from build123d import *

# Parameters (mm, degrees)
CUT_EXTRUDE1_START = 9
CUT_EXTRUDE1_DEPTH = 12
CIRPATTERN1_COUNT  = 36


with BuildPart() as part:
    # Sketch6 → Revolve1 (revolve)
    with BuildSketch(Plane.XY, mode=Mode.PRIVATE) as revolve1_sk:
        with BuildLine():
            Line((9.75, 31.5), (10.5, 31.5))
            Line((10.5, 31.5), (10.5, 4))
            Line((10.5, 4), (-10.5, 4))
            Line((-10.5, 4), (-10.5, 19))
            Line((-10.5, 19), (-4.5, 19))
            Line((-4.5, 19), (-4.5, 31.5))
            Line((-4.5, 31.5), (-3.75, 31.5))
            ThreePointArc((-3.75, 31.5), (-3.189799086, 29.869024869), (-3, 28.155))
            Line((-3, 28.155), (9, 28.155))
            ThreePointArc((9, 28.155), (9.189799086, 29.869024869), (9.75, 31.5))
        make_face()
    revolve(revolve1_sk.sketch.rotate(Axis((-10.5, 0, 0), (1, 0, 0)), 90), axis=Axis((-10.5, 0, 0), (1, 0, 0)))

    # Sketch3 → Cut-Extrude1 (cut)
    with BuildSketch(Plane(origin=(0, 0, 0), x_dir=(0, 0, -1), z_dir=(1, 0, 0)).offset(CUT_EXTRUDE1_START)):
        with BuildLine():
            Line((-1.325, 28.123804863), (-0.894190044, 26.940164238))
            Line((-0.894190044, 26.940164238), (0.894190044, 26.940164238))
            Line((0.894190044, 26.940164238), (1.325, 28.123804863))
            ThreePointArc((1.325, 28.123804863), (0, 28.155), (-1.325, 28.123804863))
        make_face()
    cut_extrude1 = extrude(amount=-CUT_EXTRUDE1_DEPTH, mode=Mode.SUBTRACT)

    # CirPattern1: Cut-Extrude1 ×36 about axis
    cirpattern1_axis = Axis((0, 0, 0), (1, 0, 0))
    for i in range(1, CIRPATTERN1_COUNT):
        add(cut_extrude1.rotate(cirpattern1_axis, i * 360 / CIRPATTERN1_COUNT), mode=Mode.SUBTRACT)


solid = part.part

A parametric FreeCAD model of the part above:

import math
import FreeCAD as App
import Part
import Sketcher
Q = App.Units.Quantity

doc = App.newDocument("Part")
body = doc.addObject("PartDesign::Body", "Body")

# Sketch on XY plane
sketch1 = doc.addObject("Sketcher::SketchObject", "Sketch")
body.addObject(sketch1)
sketch1.AttachmentSupport = (doc.XY_Plane, [""])
sketch1.MapMode = "FlatFace"
sketch1.addGeometry(Part.LineSegment(App.Vector(10.5, 31.5, 0), App.Vector(9.8, 31.5, 0)), False)
sketch1.addGeometry(Part.ArcOfCircle(Part.Circle(App.Vector(16.8, 28.2, 0), App.Vector(0, 0, 1), 7.8), math.radians(155), math.radians(180)), False)
sketch1.addGeometry(Part.LineSegment(App.Vector(9, 28.2, 0), App.Vector(-3, 28.2, 0)), False)
sketch1.addGeometry(Part.ArcOfCircle(Part.Circle(App.Vector(-10.8, 28.2, 0), App.Vector(0, 0, 1), 7.8), math.radians(0), math.radians(25)), False)
sketch1.addGeometry(Part.LineSegment(App.Vector(-3.8, 31.5, 0), App.Vector(-4.5, 31.5, 0)), False)
sketch1.addGeometry(Part.LineSegment(App.Vector(-4.5, 31.5, 0), App.Vector(-4.5, 19, 0)), False)
sketch1.addGeometry(Part.LineSegment(App.Vector(-4.5, 19, 0), App.Vector(-10.5, 19, 0)), False)
sketch1.addGeometry(Part.LineSegment(App.Vector(-10.5, 19, 0), App.Vector(-10.5, 4, 0)), False)
sketch1.addGeometry(Part.LineSegment(App.Vector(-10.5, 4, 0), App.Vector(10.5, 4, 0)), False)
sketch1.addGeometry(Part.LineSegment(App.Vector(10.5, 4, 0), App.Vector(10.5, 31.5, 0)), False)
sketch1.addConstraint(Sketcher.Constraint("Coincident", 0, 2, 1, 1))
sketch1.addConstraint(Sketcher.Constraint("Coincident", 1, 2, 2, 1))
sketch1.addConstraint(Sketcher.Constraint("Coincident", 2, 2, 3, 1))
sketch1.addConstraint(Sketcher.Constraint("Coincident", 3, 2, 4, 1))
sketch1.addConstraint(Sketcher.Constraint("Coincident", 4, 2, 5, 1))
sketch1.addConstraint(Sketcher.Constraint("Coincident", 5, 2, 6, 1))
sketch1.addConstraint(Sketcher.Constraint("Coincident", 6, 2, 7, 1))
sketch1.addConstraint(Sketcher.Constraint("Coincident", 7, 2, 8, 1))
sketch1.addConstraint(Sketcher.Constraint("Coincident", 8, 2, 9, 1))
sketch1.addConstraint(Sketcher.Constraint("Coincident", 9, 2, 0, 1))
sketch1.addConstraint(Sketcher.Constraint("Horizontal", 0))
sketch1.addConstraint(Sketcher.Constraint("Horizontal", 2))
sketch1.addConstraint(Sketcher.Constraint("Horizontal", 4))
sketch1.addConstraint(Sketcher.Constraint("Vertical", 5))
sketch1.addConstraint(Sketcher.Constraint("Horizontal", 6))
sketch1.addConstraint(Sketcher.Constraint("Vertical", 7))
sketch1.addConstraint(Sketcher.Constraint("Horizontal", 8))
sketch1.addConstraint(Sketcher.Constraint("Vertical", 9))
sketch1.addConstraint(Sketcher.Constraint("Equal", 1, 3))
sketch1.addConstraint(Sketcher.Constraint("Horizontal", 1, 3, 3, 3))
sketch1.addConstraint(Sketcher.Constraint("Horizontal", 3, 3, 1, 2))
sketch1.addConstraint(Sketcher.Constraint("Horizontal", 0, 2, 3, 2))
sketch1.addConstraint(Sketcher.Constraint("Equal", 0, 4))
sketch1.addConstraint(Sketcher.Constraint("DistanceX", 2, 2, 2, 1, Q("12 mm")))
sketch1.addConstraint(Sketcher.Constraint("DistanceX", 6, 2, 6, 1, Q("6 mm")))
sketch1.addConstraint(Sketcher.Constraint("DistanceX", 8, 1, 8, 2, Q("21 mm")))
sketch1.addConstraint(Sketcher.Constraint("DistanceY", 7, 2, 7, 1, Q("15 mm")))
sketch1.addConstraint(Sketcher.Constraint("DistanceY", 5, 2, 5, 1, Q("12.5 mm")))
sketch1.addConstraint(Sketcher.Constraint("DistanceX", -1, 1, 1, 2, Q("9 mm")))
sketch1.addConstraint(Sketcher.Constraint("DistanceY", -1, 1, 5, 2, Q("19 mm")))
sketch1.addConstraint(Sketcher.Constraint("DistanceX", 0, 2, 0, 1, Q("0.75 mm")))
sketch1.addConstraint(Sketcher.Constraint("Radius", 1, Q("7.83435 mm")))
revolution = doc.addObject("PartDesign::Revolution", "Revolution")
body.addObject(revolution)
revolution.Profile = sketch1
revolution.ReferenceAxis = (sketch1, ["H_Axis"])
revolution.Angle = 360

# Sketch on YZ plane
sketch2 = doc.addObject("Sketcher::SketchObject", "Sketch001")
body.addObject(sketch2)
sketch2.AttachmentSupport = (doc.YZ_Plane, [""])
sketch2.MapMode = "FlatFace"
sketch2.AttachmentOffset = App.Placement(App.Vector(0, 0, 9), App.Rotation())
sketch2.addGeometry(Part.LineSegment(App.Vector(28.1, 1.3, 0), App.Vector(26.9, 0.9, 0)), False)
sketch2.addGeometry(Part.LineSegment(App.Vector(26.9, 0.9, 0), App.Vector(26.9, -0.9, 0)), False)
sketch2.addGeometry(Part.LineSegment(App.Vector(26.9, -0.9, 0), App.Vector(28.1, -1.3, 0)), False)
sketch2.addGeometry(Part.ArcOfCircle(Part.Circle(App.Vector(0, 0, 0), App.Vector(0, 0, 1), 28.2), math.radians(-2.7), math.radians(2.7)), False)
sketch2.addConstraint(Sketcher.Constraint("Coincident", 0, 2, 1, 1))
sketch2.addConstraint(Sketcher.Constraint("Coincident", 1, 2, 2, 1))
sketch2.addConstraint(Sketcher.Constraint("Coincident", 2, 2, 3, 1))
sketch2.addConstraint(Sketcher.Constraint("Coincident", 3, 2, 0, 1))
sketch2.addConstraint(Sketcher.Constraint("Vertical", 1))
sketch2.addConstraint(Sketcher.Constraint("Coincident", 3, 3, -1, 1))
sketch2.addConstraint(Sketcher.Constraint("Vertical", 2, 2, 3, 2))
sketch2.addConstraint(Sketcher.Constraint("Equal", 0, 2))
sketch2.addConstraint(Sketcher.Constraint("Angle", 0, Q("-160 deg")))
sketch2.addConstraint(Sketcher.Constraint("Radius", 3, Q("28.155 mm")))
sketch2.addConstraint(Sketcher.Constraint("DistanceY", 2, 2, 3, 2, Q("2.65 mm")))
sketch2.addConstraint(Sketcher.Constraint("DistanceY", 1, 2, 1, 1, Q("1.78838 mm")))
pocket1 = doc.addObject("PartDesign::Pocket", "Pocket")
body.addObject(pocket1)
pocket1.Profile = sketch2
pocket1.Length = 12
doc.recompute()

polarpattern = doc.addObject("PartDesign::PolarPattern", "PolarPattern")
body.addObject(polarpattern)
polarpattern.Originals = [pocket1]
polarpattern.Axis = (doc.X_Axis, [""])
polarpattern.Angle = 360
polarpattern.Occurrences = 36
body.Tip = polarpattern

doc.recompute()
